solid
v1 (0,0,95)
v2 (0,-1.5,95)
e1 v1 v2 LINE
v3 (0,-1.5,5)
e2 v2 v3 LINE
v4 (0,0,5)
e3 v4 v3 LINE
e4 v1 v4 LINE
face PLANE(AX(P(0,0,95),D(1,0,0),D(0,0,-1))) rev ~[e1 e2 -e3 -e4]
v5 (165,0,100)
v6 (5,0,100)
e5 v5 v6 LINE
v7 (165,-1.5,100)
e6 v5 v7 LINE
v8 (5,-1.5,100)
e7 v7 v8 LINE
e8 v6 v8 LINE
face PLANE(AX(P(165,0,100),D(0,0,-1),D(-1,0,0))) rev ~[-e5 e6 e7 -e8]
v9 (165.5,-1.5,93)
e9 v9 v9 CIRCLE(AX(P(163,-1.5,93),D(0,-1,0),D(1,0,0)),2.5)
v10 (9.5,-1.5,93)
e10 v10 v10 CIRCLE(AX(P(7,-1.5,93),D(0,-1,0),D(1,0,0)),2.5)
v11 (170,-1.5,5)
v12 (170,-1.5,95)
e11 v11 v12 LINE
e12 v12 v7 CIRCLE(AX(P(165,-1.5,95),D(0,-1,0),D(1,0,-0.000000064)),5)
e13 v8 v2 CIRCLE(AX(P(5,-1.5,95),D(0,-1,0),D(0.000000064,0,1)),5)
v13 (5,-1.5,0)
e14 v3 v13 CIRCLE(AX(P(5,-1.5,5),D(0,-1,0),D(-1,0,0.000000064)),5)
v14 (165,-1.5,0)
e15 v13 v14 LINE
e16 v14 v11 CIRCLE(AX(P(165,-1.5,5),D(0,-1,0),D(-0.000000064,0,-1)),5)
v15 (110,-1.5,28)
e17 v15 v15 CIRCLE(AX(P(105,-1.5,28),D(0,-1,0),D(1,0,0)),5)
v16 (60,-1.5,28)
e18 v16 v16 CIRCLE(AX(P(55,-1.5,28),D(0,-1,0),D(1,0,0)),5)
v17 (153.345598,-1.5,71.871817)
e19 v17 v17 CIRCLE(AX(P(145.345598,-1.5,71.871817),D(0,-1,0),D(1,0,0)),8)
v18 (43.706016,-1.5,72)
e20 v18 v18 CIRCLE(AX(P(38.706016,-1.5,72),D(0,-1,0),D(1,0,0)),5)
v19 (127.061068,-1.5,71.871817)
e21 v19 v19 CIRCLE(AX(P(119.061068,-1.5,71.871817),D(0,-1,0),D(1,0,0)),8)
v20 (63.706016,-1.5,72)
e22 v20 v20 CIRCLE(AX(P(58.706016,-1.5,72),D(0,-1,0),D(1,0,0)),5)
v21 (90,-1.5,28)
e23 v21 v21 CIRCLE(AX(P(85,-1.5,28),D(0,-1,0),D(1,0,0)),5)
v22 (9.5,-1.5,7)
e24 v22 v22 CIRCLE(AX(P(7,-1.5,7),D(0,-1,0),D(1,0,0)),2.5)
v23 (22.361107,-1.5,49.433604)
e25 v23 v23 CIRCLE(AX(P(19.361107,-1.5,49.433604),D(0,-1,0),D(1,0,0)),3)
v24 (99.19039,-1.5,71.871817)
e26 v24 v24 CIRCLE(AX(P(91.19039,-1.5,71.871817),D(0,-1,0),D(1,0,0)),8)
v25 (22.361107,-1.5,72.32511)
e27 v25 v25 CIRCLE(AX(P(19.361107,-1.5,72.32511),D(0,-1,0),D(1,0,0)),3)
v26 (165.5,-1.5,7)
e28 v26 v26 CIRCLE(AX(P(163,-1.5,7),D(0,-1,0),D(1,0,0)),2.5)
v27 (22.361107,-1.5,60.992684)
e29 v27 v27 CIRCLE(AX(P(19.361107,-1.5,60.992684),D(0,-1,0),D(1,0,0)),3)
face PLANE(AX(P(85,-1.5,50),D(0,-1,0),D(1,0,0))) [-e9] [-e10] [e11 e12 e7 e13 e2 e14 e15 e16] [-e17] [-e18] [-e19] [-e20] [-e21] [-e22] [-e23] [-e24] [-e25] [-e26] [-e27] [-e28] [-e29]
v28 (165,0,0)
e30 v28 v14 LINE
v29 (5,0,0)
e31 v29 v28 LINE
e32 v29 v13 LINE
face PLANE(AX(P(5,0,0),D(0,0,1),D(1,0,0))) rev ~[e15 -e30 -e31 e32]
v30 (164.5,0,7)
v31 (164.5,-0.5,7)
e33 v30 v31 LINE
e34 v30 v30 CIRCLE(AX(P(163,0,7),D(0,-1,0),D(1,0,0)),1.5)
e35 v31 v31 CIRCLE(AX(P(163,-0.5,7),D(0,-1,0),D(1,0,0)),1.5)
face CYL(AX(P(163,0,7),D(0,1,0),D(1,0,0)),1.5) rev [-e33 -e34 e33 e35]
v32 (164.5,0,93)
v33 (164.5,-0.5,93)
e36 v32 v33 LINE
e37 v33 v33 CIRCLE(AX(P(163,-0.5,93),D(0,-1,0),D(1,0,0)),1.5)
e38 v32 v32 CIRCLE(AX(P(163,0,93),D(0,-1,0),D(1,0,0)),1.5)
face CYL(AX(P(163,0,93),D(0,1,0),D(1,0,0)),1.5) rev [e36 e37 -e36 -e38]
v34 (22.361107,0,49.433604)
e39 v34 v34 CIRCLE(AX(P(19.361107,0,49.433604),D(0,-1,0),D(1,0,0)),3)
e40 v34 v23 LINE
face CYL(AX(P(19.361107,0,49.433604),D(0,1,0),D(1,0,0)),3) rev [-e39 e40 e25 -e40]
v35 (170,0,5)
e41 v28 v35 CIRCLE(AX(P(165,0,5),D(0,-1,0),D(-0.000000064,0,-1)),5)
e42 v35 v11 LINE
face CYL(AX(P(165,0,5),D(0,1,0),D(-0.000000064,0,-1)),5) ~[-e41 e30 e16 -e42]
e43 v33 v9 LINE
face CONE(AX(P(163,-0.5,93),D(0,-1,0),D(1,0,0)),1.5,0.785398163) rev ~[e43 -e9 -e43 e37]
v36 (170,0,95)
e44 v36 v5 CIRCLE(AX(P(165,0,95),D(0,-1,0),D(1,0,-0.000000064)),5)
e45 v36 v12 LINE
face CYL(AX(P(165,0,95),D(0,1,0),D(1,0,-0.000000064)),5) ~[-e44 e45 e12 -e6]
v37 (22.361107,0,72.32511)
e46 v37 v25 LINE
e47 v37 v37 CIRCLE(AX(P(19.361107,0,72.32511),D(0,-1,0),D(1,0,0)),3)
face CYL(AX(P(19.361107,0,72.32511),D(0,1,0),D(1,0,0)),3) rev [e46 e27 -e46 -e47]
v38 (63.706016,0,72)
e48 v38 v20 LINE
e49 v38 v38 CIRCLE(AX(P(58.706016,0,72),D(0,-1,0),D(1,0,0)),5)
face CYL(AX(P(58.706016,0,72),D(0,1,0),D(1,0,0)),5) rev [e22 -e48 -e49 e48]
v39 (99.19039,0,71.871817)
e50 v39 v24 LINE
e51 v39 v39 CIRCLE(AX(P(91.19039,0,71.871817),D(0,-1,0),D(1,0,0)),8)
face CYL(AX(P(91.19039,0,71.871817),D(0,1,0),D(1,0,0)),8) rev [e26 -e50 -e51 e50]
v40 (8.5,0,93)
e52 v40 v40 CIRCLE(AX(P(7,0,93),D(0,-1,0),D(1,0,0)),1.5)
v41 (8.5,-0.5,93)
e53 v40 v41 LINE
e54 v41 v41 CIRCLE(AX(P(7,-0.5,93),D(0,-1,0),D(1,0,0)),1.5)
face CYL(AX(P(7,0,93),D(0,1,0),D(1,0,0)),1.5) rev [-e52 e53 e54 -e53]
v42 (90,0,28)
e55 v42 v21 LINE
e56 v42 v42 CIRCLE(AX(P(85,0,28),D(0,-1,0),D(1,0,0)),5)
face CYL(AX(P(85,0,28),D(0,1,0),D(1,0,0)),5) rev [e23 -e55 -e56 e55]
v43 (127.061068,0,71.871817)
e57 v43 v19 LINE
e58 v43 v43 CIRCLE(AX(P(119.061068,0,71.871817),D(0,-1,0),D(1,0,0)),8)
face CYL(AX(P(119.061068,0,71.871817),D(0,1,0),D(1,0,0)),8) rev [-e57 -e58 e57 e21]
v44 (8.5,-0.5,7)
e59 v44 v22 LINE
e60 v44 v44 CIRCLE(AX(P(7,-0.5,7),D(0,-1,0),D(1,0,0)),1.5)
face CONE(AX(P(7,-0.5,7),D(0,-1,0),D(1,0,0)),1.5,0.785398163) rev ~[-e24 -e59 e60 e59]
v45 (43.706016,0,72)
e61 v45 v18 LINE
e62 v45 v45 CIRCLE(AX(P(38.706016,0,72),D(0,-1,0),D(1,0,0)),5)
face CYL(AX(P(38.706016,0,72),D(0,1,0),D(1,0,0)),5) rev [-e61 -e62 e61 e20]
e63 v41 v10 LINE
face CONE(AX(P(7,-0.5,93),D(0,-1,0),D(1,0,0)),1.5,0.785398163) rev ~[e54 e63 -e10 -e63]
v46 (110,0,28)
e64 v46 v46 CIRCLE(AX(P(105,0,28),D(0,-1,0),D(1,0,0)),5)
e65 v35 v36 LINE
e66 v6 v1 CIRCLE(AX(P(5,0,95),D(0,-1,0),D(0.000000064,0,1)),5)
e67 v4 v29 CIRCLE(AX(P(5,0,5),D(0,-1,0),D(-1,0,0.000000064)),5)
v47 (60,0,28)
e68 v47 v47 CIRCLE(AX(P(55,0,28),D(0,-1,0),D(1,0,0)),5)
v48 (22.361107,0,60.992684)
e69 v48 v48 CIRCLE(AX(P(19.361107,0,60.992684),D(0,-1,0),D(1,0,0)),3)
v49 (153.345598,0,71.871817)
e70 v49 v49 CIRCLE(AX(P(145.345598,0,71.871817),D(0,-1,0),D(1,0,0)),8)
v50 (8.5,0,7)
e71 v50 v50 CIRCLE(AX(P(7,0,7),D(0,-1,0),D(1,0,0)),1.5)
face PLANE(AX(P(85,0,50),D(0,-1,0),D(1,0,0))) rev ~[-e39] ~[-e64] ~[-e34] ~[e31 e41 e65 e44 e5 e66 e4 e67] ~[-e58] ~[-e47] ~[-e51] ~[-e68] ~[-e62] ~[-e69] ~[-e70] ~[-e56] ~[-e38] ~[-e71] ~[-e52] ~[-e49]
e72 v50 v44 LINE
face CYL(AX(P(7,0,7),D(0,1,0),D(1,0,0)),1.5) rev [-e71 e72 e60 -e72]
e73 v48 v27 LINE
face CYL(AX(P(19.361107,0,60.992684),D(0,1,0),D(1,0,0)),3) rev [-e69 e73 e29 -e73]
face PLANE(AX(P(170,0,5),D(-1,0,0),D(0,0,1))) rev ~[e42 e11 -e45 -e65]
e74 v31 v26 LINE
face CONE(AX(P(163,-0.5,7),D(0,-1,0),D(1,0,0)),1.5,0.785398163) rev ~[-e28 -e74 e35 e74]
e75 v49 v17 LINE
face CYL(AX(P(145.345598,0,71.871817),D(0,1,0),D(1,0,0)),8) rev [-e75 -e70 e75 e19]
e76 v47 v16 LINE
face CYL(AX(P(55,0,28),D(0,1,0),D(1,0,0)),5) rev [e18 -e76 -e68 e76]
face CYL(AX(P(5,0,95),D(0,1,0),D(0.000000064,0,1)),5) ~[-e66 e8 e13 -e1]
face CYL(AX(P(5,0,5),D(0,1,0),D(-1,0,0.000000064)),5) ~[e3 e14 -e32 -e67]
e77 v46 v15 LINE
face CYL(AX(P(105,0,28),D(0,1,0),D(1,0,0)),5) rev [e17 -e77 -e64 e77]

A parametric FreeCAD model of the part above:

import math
import FreeCAD as App
import Part
import Sketcher
from FreeCAD import Vector
Q = App.Units.Quantity


def edges_at(feature, points):
    """Names of the edges that pass closest to the given points."""
    edges = feature.Shape.Edges
    near = lambda p: min(range(len(edges)), key=lambda i: edges[i].distToShape(Part.Vertex(*p))[0])
    return sorted({f"Edge{near(p) + 1}" for p in points})

doc = App.newDocument("Part")
body = doc.addObject("PartDesign::Body", "Body")

sketch1 = body.newObject("Sketcher::SketchObject", "Sketch")
sketch1.AttachmentSupport = (doc.getObject("XZ_Plane"), [""])
sketch1.MapMode = "FlatFace"
sketch1.addGeometry(Part.ArcOfCircle(Part.Circle(Vector(5, 5, 0), Vector(0, 0, 1), 5), math.radians(180), math.radians(270)), False)
sketch1.addGeometry(Part.LineSegment(Vector(5, 0, 0), Vector(165, 0, 0)), False)
sketch1.addGeometry(Part.ArcOfCircle(Part.Circle(Vector(165, 5, 0), Vector(0, 0, 1), 5), math.radians(-90), math.radians(0)), False)
sketch1.addGeometry(Part.LineSegment(Vector(170, 5, 0), Vector(170, 95, 0)), False)
sketch1.addGeometry(Part.ArcOfCircle(Part.Circle(Vector(165, 95, 0), Vector(0, 0, 1), 5), math.radians(0), math.radians(90)), False)
sketch1.addGeometry(Part.LineSegment(Vector(165, 100, 0), Vector(5, 100, 0)), False)
sketch1.addGeometry(Part.ArcOfCircle(Part.Circle(Vector(5, 95, 0), Vector(0, 0, 1), 5), math.radians(90), math.radians(180)), False)
sketch1.addGeometry(Part.LineSegment(Vector(0, 95, 0), Vector(0, 5, 0)), False)
sketch1.addGeometry(Part.Circle(Vector(7, 7, 0), Vector(0, 0, 1), 1.5), False)
sketch1.addGeometry(Part.Circle(Vector(19.4, 49.4, 0), Vector(0, 0, 1), 3), False)
sketch1.addGeometry(Part.Circle(Vector(55, 28, 0), Vector(0, 0, 1), 5), False)
sketch1.addGeometry(Part.Circle(Vector(163, 7, 0), Vector(0, 0, 1), 1.5), False)
sketch1.addGeometry(Part.Circle(Vector(85, 28, 0), Vector(0, 0, 1), 5), False)
sketch1.addGeometry(Part.Circle(Vector(105, 28, 0), Vector(0, 0, 1), 5), False)
sketch1.addGeometry(Part.Circle(Vector(19.4, 61, 0), Vector(0, 0, 1), 3), False)
sketch1.addGeometry(Part.Circle(Vector(38.7, 72, 0), Vector(0, 0, 1), 5), False)
sketch1.addGeometry(Part.Circle(Vector(58.7, 72, 0), Vector(0, 0, 1), 5), False)
sketch1.addGeometry(Part.Circle(Vector(19.4, 72.3, 0), Vector(0, 0, 1), 3), False)
sketch1.addGeometry(Part.Circle(Vector(7, 93, 0), Vector(0, 0, 1), 1.5), False)
sketch1.addGeometry(Part.Circle(Vector(91.2, 71.9, 0), Vector(0, 0, 1), 8), False)
sketch1.addGeometry(Part.Circle(Vector(119.1, 71.9, 0), Vector(0, 0, 1), 8), False)
sketch1.addGeometry(Part.Circle(Vector(145.3, 71.9, 0), Vector(0, 0, 1), 8), False)
sketch1.addGeometry(Part.Circle(Vector(163, 93, 0), Vector(0, 0, 1), 1.5), False)
sketch1.addConstraint(Sketcher.Constraint("Tangent", 0, 2, 1, 1))
sketch1.addConstraint(Sketcher.Constraint("Tangent", 1, 2, 2, 1))
sketch1.addConstraint(Sketcher.Constraint("Tangent", 2, 2, 3, 1))
sketch1.addConstraint(Sketcher.Constraint("Tangent", 3, 2, 4, 1))
sketch1.addConstraint(Sketcher.Constraint("Tangent", 4, 2, 5, 1))
sketch1.addConstraint(Sketcher.Constraint("Tangent", 5, 2, 6, 1))
sketch1.addConstraint(Sketcher.Constraint("Tangent", 6, 2, 7, 1))
sketch1.addConstraint(Sketcher.Constraint("Tangent", 7, 2, 0, 1))
sketch1.addConstraint(Sketcher.Constraint("Horizontal", 1))
sketch1.addConstraint(Sketcher.Constraint("Vertical", 3))
sketch1.addConstraint(Sketcher.Constraint("Horizontal", 5))
sketch1.addConstraint(Sketcher.Constraint("Vertical", 7))
sketch1.addConstraint(Sketcher.Constraint("Equal", 0, 2))
sketch1.addConstraint(Sketcher.Constraint("Equal", 2, 4))
sketch1.addConstraint(Sketcher.Constraint("Equal", 4, 6))
sketch1.addConstraint(Sketcher.Constraint("Equal", 6, 10))
sketch1.addConstraint(Sketcher.Constraint("Equal", 8, 11))
sketch1.addConstraint(Sketcher.Constraint("Equal", 10, 12))
sketch1.addConstraint(Sketcher.Constraint("Equal", 12, 13))
sketch1.addConstraint(Sketcher.Constraint("Equal", 9, 14))
sketch1.addConstraint(Sketcher.Constraint("Equal", 13, 15))
sketch1.addConstraint(Sketcher.Constraint("Equal", 15, 16))
sketch1.addConstraint(Sketcher.Constraint("Equal", 14, 17))
sketch1.addConstraint(Sketcher.Constraint("Equal", 11, 18))
sketch1.addConstraint(Sketcher.Constraint("Equal", 19, 20))
sketch1.addConstraint(Sketcher.Constraint("Equal", 20, 21))
sketch1.addConstraint(Sketcher.Constraint("Equal", 18, 22))
sketch1.addConstraint(Sketcher.Constraint("PointOnObject", 0, 2, -1))
sketch1.addConstraint(Sketcher.Constraint("PointOnObject", 6, 2, -2))
sketch1.addConstraint(Sketcher.Constraint("Horizontal", 8, 3, 11, 3))
sketch1.addConstraint(Sketcher.Constraint("Horizontal", 10, 3, 12, 3))
sketch1.addConstraint(Sketcher.Constraint("Horizontal", 12, 3, 13, 3))
sketch1.addConstraint(Sketcher.Constraint("Horizontal", 15, 3, 16, 3))
sketch1.addConstraint(Sketcher.Constraint("Horizontal", 19, 3, 20, 3))
sketch1.addConstraint(Sketcher.Constraint("Horizontal", 20, 3, 21, 3))
sketch1.addConstraint(Sketcher.Constraint("Horizontal", 18, 3, 22, 3))
sketch1.addConstraint(Sketcher.Constraint("Vertical", 9, 3, 14, 3))
sketch1.addConstraint(Sketcher.Constraint("Vertical", 14, 3, 17, 3))
sketch1.addConstraint(Sketcher.Constraint("Vertical", 8, 3, 18, 3))
sketch1.addConstraint(Sketcher.Constraint("Vertical", 11, 3, 22, 3))
sketch1.addConstraint(Sketcher.Constraint("Diameter", 8, Q("3 mm")))
sketch1.addConstraint(Sketcher.Constraint("Diameter", 9, Q("6 mm")))
sketch1.addConstraint(Sketcher.Constraint("Diameter", 10, Q("10 mm")))
sketch1.addConstraint(Sketcher.Constraint("Diameter", 19, Q("16 mm")))
sketch1.addConstraint(Sketcher.Constraint("DistanceX", 1, 1, 1, 2, Q("160 mm")))
sketch1.addConstraint(Sketcher.Constraint("DistanceY", 3, 1, 3, 2, Q("90 mm")))
sketch1.addConstraint(Sketcher.Constraint("DistanceX", -1, 1, 8, 3, Q("7 mm")))
sketch1.addConstraint(Sketcher.Constraint("DistanceY", -1, 1, 8, 3, Q("7 mm")))
sketch1.addConstraint(Sketcher.Constraint("DistanceX", -1, 1, 10, 3, Q("55 mm")))
sketch1.addConstraint(Sketcher.Constraint("DistanceY", -1, 1, 10, 3, Q("28 mm")))
sketch1.addConstraint(Sketcher.Constraint("DistanceX", -1, 1, 11, 3, Q("163 mm")))
sketch1.addConstraint(Sketcher.Constraint("DistanceX", -1, 1, 12, 3, Q("85 mm")))
sketch1.addConstraint(Sketcher.Constraint("DistanceX", -1, 1, 13, 3, Q("105 mm")))
sketch1.addConstraint(Sketcher.Constraint("DistanceY", -1, 1, 15, 3, Q("72 mm")))
sketch1.addConstraint(Sketcher.Constraint("DistanceY", -1, 1, 18, 3, Q("93 mm")))
sketch1.addConstraint(Sketcher.Constraint("DistanceX", 15, 3, 16, 3, Q("20 mm")))
sketch1.addConstraint(Sketcher.Constraint("DistanceX", -1, 1, 21, 3, Q("145.345598 mm")))
sketch1.addConstraint(Sketcher.Constraint("DistanceY", -1, 1, 17, 3, Q("72.32511 mm")))
sketch1.addConstraint(Sketcher.Constraint("DistanceX", -1, 1, 19, 3, Q("91.19039 mm")))
sketch1.addConstraint(Sketcher.Constraint("DistanceX", -1, 1, 20, 3, Q("119.061068 mm")))
sketch1.addConstraint(Sketcher.Constraint("DistanceY", 9, 3, 14, 3, Q("11.55908 mm")))
sketch1.addConstraint(Sketcher.Constraint("DistanceX", 14, 3, 15, 3, Q("19.344909 mm")))
sketch1.addConstraint(Sketcher.Constraint("DistanceX", -1, 1, 9, 3, Q("19.361107 mm")))
sketch1.addConstraint(Sketcher.Constraint("DistanceY", -1, 1, 9, 3, Q("49.433604 mm")))
sketch1.addConstraint(Sketcher.Constraint("DistanceY", -1, 1, 19, 3, Q("71.871817 mm")))
pad1 = body.newObject("PartDesign::Pad", "Pad")
pad1.Profile = sketch1
pad1.Length = 1.5
doc.recompute()

chamfer = body.newObject("PartDesign::Chamfer", "Chamfer")
chamfer.Base = (pad1, edges_at(pad1, [
    (161.5, -1.5, 93),
    (161.5, -1.5, 7),
    (5.5, -1.5, 93),
    (5.5, -1.5, 7),
]))
chamfer.Size = 1

doc.recompute()
